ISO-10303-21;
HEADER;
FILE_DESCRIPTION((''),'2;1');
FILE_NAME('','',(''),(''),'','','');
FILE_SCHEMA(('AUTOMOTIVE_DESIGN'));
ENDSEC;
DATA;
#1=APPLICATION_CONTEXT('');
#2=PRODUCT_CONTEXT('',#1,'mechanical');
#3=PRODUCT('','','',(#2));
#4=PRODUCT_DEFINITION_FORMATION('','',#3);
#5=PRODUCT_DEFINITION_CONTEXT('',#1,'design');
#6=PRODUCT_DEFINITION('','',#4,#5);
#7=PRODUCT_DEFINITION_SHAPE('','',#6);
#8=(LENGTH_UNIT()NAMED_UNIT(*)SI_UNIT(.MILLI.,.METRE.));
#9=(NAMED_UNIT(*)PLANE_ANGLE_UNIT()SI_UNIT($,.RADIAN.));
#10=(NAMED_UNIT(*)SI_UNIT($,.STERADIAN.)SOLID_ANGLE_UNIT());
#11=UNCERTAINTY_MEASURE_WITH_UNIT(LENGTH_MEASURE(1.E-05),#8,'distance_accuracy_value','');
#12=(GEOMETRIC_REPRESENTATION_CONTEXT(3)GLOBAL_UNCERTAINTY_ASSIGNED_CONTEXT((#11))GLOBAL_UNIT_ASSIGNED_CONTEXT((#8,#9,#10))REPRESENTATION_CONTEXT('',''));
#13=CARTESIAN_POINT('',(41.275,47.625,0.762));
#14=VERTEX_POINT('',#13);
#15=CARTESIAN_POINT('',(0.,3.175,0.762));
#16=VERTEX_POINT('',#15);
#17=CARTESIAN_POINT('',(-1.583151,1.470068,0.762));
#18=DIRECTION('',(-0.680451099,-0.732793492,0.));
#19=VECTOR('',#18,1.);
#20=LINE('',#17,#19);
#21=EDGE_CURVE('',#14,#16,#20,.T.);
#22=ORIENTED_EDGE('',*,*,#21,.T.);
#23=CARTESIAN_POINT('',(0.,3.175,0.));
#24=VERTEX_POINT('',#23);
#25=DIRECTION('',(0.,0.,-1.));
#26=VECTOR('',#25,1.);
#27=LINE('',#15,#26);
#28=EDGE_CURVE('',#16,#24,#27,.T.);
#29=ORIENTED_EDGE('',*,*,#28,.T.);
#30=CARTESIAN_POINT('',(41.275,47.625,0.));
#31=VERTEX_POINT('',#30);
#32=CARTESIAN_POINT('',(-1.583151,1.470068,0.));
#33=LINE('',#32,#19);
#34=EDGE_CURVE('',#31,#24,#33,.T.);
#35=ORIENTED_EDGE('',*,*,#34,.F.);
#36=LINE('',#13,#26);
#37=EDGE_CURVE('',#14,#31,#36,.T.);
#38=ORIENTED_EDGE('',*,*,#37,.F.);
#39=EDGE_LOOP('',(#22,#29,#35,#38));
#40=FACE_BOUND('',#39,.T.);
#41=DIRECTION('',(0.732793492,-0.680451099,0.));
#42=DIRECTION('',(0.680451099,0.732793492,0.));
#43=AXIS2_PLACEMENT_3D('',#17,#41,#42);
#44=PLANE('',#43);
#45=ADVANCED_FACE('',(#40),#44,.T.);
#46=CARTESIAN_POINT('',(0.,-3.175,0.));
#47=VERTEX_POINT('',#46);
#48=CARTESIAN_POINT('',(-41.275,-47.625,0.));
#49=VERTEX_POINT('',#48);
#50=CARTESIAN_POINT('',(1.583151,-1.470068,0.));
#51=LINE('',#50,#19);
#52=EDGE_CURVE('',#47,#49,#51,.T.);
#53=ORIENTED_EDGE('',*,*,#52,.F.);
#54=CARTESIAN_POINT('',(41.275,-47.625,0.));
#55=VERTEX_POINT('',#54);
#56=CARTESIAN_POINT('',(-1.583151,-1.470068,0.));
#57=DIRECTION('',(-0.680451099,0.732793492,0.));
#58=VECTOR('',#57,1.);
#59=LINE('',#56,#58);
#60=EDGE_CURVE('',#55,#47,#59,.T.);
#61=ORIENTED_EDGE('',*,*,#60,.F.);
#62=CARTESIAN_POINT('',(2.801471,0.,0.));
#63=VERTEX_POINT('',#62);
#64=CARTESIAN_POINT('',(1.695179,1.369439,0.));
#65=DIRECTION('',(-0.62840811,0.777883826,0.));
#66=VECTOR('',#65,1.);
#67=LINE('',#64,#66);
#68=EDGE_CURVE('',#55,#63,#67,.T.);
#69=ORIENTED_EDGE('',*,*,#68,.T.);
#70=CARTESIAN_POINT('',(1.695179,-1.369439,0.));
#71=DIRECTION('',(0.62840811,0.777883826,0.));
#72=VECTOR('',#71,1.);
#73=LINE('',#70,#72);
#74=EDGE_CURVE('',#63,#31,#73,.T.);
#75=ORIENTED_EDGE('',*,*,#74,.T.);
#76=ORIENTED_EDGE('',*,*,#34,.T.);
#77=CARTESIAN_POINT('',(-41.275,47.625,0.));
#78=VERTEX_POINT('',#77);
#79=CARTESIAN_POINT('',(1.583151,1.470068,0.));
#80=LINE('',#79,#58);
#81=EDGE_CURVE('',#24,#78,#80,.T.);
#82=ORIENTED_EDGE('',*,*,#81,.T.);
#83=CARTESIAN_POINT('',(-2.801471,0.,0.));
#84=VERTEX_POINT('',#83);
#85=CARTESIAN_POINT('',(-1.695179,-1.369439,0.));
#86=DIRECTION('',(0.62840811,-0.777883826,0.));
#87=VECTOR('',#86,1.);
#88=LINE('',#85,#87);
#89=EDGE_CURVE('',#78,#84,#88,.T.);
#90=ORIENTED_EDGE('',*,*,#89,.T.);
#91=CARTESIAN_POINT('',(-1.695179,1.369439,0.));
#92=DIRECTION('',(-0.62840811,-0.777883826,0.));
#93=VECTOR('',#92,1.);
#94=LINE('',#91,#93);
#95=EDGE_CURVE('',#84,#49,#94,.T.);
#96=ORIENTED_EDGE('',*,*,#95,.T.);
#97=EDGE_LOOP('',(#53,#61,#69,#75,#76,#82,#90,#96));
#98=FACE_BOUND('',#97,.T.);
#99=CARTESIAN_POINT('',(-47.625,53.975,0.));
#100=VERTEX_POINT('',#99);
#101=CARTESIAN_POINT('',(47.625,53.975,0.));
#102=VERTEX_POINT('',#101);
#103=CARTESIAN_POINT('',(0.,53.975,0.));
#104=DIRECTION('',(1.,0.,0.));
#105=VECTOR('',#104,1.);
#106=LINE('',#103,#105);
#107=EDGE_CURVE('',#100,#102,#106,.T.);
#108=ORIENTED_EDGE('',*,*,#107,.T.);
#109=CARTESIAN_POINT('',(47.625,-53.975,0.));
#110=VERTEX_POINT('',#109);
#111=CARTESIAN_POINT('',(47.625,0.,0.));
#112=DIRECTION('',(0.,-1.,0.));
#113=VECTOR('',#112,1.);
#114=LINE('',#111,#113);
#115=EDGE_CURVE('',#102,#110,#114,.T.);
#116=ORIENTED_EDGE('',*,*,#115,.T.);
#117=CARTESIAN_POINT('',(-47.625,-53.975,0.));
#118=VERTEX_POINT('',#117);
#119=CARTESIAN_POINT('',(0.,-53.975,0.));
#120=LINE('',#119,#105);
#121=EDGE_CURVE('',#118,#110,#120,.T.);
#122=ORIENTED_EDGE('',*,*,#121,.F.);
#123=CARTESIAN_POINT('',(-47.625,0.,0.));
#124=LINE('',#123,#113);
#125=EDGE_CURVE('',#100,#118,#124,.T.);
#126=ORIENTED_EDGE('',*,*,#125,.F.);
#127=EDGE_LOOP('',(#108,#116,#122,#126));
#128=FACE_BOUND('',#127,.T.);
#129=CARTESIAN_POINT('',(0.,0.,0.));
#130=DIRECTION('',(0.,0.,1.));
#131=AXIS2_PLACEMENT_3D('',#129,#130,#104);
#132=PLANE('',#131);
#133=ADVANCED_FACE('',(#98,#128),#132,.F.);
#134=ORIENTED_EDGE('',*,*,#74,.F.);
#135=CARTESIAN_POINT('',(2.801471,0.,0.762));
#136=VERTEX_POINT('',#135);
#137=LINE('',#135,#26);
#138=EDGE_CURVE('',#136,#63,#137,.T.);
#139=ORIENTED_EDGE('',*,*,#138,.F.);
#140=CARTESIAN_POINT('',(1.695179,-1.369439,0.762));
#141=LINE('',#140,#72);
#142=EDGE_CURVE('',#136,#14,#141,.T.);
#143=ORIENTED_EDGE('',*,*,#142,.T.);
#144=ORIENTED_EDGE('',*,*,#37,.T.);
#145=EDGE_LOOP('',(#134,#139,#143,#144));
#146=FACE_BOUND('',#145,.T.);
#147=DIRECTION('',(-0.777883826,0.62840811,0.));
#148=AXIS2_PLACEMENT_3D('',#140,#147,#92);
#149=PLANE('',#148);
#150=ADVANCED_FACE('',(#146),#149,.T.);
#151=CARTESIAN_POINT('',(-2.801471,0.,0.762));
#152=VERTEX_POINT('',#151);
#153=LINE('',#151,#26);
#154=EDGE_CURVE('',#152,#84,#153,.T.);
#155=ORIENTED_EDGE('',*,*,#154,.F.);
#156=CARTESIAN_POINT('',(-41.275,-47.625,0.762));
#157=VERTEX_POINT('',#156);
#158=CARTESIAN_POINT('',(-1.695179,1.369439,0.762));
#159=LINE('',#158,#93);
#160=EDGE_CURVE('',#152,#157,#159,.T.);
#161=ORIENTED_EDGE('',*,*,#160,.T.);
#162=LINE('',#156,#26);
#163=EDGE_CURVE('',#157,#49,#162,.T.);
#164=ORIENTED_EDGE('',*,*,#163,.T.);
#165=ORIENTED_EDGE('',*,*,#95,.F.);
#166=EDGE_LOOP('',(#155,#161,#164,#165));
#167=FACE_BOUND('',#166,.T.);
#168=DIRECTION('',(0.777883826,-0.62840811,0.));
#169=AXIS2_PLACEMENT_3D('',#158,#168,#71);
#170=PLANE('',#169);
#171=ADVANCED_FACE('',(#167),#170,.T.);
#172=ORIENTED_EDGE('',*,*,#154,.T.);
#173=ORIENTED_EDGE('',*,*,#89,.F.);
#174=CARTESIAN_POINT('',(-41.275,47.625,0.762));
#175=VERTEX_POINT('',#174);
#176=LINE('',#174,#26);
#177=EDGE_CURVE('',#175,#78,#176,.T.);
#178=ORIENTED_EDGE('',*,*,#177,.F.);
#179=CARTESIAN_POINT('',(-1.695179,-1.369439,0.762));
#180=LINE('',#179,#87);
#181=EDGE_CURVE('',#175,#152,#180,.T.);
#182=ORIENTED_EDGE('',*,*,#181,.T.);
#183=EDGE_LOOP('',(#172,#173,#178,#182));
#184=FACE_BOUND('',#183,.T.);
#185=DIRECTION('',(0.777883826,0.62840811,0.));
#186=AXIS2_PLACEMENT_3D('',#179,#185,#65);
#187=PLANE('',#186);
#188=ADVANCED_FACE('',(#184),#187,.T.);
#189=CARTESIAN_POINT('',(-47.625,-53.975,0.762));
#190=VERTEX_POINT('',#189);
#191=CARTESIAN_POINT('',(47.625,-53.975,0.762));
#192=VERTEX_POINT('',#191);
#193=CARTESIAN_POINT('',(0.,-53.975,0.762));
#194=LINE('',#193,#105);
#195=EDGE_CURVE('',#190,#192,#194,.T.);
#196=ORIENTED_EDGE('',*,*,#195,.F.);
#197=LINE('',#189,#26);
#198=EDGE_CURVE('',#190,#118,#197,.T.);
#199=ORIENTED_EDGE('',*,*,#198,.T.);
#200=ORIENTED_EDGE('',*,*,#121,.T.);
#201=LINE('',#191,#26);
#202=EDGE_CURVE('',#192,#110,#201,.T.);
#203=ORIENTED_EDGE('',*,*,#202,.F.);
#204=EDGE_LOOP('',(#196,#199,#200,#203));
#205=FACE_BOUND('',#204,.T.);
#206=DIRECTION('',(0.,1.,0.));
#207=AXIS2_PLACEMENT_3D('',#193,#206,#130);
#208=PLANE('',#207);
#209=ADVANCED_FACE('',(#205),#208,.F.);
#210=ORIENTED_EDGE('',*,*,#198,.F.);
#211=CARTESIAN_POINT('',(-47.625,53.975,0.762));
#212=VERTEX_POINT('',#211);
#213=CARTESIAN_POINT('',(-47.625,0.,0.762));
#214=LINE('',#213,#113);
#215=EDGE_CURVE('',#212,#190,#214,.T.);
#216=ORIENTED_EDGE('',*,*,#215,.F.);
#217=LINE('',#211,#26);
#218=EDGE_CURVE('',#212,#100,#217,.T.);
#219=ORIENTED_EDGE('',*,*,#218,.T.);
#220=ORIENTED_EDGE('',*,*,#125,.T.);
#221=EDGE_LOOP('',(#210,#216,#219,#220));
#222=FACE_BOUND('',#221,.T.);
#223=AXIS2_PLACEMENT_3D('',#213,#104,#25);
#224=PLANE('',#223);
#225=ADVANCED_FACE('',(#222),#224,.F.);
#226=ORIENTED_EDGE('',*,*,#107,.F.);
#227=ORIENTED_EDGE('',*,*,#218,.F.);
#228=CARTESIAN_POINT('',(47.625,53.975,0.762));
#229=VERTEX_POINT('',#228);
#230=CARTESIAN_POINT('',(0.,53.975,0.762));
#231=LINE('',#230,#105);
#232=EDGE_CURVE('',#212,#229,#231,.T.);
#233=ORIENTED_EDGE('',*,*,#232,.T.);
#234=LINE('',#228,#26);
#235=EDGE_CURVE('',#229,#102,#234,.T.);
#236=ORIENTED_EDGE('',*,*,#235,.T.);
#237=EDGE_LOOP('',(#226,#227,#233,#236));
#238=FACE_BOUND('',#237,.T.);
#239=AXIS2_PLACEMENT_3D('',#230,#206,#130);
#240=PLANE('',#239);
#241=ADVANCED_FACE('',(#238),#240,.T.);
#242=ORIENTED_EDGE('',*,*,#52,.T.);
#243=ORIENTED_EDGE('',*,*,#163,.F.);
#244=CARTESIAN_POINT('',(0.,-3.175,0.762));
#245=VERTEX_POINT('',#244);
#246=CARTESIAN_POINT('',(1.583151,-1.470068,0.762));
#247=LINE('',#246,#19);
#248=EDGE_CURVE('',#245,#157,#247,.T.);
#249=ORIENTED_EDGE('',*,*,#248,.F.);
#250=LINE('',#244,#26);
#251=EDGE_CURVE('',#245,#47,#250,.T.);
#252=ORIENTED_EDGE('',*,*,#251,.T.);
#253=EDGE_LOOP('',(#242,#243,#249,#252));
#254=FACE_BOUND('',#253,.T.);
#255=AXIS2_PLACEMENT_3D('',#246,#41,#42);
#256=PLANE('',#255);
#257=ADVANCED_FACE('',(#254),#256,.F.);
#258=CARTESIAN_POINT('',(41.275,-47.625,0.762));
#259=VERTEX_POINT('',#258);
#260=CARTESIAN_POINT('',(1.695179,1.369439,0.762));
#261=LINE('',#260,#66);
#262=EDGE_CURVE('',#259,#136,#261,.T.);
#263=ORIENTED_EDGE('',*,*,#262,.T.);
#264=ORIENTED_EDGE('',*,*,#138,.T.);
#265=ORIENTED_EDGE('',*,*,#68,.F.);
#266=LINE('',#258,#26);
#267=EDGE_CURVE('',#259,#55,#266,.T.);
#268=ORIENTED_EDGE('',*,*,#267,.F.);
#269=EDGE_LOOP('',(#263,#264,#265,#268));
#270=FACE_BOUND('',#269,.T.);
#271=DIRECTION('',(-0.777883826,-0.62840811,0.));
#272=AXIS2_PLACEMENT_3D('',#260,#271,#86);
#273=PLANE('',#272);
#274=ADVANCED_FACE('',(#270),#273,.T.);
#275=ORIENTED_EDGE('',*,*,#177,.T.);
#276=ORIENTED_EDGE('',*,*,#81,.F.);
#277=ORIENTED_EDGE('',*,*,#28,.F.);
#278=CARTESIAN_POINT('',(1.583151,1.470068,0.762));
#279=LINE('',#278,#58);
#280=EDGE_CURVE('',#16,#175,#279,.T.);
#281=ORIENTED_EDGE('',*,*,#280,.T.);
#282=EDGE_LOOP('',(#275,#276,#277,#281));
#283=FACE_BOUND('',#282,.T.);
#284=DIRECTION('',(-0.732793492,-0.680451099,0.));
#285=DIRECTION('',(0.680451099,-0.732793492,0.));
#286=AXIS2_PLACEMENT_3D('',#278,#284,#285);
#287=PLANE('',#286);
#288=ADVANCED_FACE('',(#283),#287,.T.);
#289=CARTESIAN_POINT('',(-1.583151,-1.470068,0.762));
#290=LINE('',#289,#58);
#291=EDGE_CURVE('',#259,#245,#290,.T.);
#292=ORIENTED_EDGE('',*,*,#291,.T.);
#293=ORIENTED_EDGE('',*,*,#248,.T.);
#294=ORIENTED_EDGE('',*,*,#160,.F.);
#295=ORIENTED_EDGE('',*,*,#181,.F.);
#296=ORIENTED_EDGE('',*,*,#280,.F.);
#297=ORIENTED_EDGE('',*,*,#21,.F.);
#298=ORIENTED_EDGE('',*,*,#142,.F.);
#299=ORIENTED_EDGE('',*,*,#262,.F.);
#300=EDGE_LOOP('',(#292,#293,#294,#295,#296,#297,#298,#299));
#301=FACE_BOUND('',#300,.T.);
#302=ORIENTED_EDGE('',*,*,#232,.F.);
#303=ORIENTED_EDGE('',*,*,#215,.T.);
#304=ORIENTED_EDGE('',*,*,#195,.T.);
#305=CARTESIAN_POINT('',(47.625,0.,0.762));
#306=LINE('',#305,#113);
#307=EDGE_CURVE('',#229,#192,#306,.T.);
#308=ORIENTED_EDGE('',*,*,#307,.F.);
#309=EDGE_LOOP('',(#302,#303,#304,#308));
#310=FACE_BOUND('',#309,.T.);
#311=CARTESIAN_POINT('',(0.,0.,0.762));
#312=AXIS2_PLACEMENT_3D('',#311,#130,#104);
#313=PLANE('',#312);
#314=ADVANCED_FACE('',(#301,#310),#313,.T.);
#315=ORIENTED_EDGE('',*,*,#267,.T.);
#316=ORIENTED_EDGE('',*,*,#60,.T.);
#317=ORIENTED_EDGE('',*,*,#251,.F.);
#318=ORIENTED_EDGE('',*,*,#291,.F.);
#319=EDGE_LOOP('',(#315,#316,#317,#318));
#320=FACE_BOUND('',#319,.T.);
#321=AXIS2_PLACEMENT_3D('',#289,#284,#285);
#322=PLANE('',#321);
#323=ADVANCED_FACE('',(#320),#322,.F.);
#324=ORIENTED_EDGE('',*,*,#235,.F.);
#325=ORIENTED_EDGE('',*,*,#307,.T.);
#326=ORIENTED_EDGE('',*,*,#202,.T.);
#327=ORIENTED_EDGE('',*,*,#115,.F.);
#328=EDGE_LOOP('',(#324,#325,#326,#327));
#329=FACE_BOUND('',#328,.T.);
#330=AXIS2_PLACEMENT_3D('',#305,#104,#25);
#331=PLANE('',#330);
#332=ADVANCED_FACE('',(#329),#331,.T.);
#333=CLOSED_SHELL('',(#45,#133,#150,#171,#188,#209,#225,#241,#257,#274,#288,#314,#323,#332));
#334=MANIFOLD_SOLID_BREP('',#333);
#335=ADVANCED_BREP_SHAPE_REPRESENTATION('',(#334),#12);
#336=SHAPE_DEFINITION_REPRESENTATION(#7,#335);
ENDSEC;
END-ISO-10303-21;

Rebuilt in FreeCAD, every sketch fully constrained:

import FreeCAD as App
import Part
import Sketcher
Q = App.Units.Quantity

doc = App.newDocument("Part")
body = doc.addObject("PartDesign::Body", "Body")

# Sketch on XY plane
sketch1 = doc.addObject("Sketcher::SketchObject", "Sketch")
body.addObject(sketch1)
sketch1.AttachmentSupport = (doc.XY_Plane, [""])
sketch1.MapMode = "FlatFace"
sketch1.addGeometry(Part.LineSegment(App.Vector(-48, 54, 0), App.Vector(-48, -54, 0)), False)
sketch1.addGeometry(Part.LineSegment(App.Vector(-48, -54, 0), App.Vector(48, -54, 0)), False)
sketch1.addGeometry(Part.LineSegment(App.Vector(48, -54, 0), App.Vector(48, 54, 0)), False)
sketch1.addGeometry(Part.LineSegment(App.Vector(48, 54, 0), App.Vector(-48, 54, 0)), False)
sketch1.addGeometry(Part.LineSegment(App.Vector(41, -48, 0), App.Vector(0, -3, 0)), False)
sketch1.addGeometry(Part.LineSegment(App.Vector(0, -3, 0), App.Vector(-41, -48, 0)), False)
sketch1.addGeometry(Part.LineSegment(App.Vector(-41, -48, 0), App.Vector(-3, 0, 0)), False)
sketch1.addGeometry(Part.LineSegment(App.Vector(-3, 0, 0), App.Vector(-41, 48, 0)), False)
sketch1.addGeometry(Part.LineSegment(App.Vector(-41, 48, 0), App.Vector(0, 3, 0)), False)
sketch1.addGeometry(Part.LineSegment(App.Vector(0, 3, 0), App.Vector(41, 48, 0)), False)
sketch1.addGeometry(Part.LineSegment(App.Vector(41, 48, 0), App.Vector(3, 0, 0)), False)
sketch1.addGeometry(Part.LineSegment(App.Vector(3, 0, 0), App.Vector(41, -48, 0)), False)
sketch1.addConstraint(Sketcher.Constraint("Coincident", 0, 2, 1, 1))
sketch1.addConstraint(Sketcher.Constraint("Coincident", 1, 2, 2, 1))
sketch1.addConstraint(Sketcher.Constraint("Coincident", 2, 2, 3, 1))
sketch1.addConstraint(Sketcher.Constraint("Coincident", 3, 2, 0, 1))
sketch1.addConstraint(Sketcher.Constraint("Coincident", 4, 2, 5, 1))
sketch1.addConstraint(Sketcher.Constraint("Coincident", 5, 2, 6, 1))
sketch1.addConstraint(Sketcher.Constraint("Coincident", 6, 2, 7, 1))
sketch1.addConstraint(Sketcher.Constraint("Coincident", 7, 2, 8, 1))
sketch1.addConstraint(Sketcher.Constraint("Coincident", 8, 2, 9, 1))
sketch1.addConstraint(Sketcher.Constraint("Coincident", 9, 2, 10, 1))
sketch1.addConstraint(Sketcher.Constraint("Coincident", 10, 2, 11, 1))
sketch1.addConstraint(Sketcher.Constraint("Coincident", 11, 2, 4, 1))
sketch1.addConstraint(Sketcher.Constraint("Vertical", 0))
sketch1.addConstraint(Sketcher.Constraint("Horizontal", 1))
sketch1.addConstraint(Sketcher.Constraint("Vertical", 2))
sketch1.addConstraint(Sketcher.Constraint("Horizontal", 3))
sketch1.addConstraint(Sketcher.Constraint("Symmetric", 0, 2, 2, 2, -1, 1))
sketch1.addConstraint(Sketcher.Constraint("Symmetric", 4, 2, 8, 2, -1, 1))
sketch1.addConstraint(Sketcher.Constraint("Symmetric", 5, 2, 9, 2, -1, 1))
sketch1.addConstraint(Sketcher.Constraint("Symmetric", 6, 2, 10, 2, -1, 1))
sketch1.addConstraint(Sketcher.Constraint("Symmetric", 7, 2, 11, 2, -1, 1))
sketch1.addConstraint(Sketcher.Constraint("Symmetric", 7, 2, 9, 2, -2))
sketch1.addConstraint(Sketcher.Constraint("PointOnObject", 4, 2, -2))
sketch1.addConstraint(Sketcher.Constraint("PointOnObject", 6, 2, -1))
sketch1.addConstraint(Sketcher.Constraint("DistanceY", 0, 2, 4, 2, Q("2 in")))
sketch1.addConstraint(Sketcher.Constraint("DistanceY", 5, 2, 3, 2, Q("4 in")))
sketch1.addConstraint(Sketcher.Constraint("DistanceX", 1, 1, 1, 2, Q("3.75 in")))
sketch1.addConstraint(Sketcher.Constraint("DistanceY", 0, 2, 0, 1, Q("4.25 in")))
sketch1.addConstraint(Sketcher.Constraint("DistanceX", 5, 2, 1, 2, Q("3.5 in")))
sketch1.addConstraint(Sketcher.Constraint("DistanceX", 6, 2, -1, 1, 2.801471))
pad1 = doc.addObject("PartDesign::Pad", "Pad")
body.addObject(pad1)
pad1.Profile = sketch1
pad1.Length = Q("0.03 in")

doc.recompute()
